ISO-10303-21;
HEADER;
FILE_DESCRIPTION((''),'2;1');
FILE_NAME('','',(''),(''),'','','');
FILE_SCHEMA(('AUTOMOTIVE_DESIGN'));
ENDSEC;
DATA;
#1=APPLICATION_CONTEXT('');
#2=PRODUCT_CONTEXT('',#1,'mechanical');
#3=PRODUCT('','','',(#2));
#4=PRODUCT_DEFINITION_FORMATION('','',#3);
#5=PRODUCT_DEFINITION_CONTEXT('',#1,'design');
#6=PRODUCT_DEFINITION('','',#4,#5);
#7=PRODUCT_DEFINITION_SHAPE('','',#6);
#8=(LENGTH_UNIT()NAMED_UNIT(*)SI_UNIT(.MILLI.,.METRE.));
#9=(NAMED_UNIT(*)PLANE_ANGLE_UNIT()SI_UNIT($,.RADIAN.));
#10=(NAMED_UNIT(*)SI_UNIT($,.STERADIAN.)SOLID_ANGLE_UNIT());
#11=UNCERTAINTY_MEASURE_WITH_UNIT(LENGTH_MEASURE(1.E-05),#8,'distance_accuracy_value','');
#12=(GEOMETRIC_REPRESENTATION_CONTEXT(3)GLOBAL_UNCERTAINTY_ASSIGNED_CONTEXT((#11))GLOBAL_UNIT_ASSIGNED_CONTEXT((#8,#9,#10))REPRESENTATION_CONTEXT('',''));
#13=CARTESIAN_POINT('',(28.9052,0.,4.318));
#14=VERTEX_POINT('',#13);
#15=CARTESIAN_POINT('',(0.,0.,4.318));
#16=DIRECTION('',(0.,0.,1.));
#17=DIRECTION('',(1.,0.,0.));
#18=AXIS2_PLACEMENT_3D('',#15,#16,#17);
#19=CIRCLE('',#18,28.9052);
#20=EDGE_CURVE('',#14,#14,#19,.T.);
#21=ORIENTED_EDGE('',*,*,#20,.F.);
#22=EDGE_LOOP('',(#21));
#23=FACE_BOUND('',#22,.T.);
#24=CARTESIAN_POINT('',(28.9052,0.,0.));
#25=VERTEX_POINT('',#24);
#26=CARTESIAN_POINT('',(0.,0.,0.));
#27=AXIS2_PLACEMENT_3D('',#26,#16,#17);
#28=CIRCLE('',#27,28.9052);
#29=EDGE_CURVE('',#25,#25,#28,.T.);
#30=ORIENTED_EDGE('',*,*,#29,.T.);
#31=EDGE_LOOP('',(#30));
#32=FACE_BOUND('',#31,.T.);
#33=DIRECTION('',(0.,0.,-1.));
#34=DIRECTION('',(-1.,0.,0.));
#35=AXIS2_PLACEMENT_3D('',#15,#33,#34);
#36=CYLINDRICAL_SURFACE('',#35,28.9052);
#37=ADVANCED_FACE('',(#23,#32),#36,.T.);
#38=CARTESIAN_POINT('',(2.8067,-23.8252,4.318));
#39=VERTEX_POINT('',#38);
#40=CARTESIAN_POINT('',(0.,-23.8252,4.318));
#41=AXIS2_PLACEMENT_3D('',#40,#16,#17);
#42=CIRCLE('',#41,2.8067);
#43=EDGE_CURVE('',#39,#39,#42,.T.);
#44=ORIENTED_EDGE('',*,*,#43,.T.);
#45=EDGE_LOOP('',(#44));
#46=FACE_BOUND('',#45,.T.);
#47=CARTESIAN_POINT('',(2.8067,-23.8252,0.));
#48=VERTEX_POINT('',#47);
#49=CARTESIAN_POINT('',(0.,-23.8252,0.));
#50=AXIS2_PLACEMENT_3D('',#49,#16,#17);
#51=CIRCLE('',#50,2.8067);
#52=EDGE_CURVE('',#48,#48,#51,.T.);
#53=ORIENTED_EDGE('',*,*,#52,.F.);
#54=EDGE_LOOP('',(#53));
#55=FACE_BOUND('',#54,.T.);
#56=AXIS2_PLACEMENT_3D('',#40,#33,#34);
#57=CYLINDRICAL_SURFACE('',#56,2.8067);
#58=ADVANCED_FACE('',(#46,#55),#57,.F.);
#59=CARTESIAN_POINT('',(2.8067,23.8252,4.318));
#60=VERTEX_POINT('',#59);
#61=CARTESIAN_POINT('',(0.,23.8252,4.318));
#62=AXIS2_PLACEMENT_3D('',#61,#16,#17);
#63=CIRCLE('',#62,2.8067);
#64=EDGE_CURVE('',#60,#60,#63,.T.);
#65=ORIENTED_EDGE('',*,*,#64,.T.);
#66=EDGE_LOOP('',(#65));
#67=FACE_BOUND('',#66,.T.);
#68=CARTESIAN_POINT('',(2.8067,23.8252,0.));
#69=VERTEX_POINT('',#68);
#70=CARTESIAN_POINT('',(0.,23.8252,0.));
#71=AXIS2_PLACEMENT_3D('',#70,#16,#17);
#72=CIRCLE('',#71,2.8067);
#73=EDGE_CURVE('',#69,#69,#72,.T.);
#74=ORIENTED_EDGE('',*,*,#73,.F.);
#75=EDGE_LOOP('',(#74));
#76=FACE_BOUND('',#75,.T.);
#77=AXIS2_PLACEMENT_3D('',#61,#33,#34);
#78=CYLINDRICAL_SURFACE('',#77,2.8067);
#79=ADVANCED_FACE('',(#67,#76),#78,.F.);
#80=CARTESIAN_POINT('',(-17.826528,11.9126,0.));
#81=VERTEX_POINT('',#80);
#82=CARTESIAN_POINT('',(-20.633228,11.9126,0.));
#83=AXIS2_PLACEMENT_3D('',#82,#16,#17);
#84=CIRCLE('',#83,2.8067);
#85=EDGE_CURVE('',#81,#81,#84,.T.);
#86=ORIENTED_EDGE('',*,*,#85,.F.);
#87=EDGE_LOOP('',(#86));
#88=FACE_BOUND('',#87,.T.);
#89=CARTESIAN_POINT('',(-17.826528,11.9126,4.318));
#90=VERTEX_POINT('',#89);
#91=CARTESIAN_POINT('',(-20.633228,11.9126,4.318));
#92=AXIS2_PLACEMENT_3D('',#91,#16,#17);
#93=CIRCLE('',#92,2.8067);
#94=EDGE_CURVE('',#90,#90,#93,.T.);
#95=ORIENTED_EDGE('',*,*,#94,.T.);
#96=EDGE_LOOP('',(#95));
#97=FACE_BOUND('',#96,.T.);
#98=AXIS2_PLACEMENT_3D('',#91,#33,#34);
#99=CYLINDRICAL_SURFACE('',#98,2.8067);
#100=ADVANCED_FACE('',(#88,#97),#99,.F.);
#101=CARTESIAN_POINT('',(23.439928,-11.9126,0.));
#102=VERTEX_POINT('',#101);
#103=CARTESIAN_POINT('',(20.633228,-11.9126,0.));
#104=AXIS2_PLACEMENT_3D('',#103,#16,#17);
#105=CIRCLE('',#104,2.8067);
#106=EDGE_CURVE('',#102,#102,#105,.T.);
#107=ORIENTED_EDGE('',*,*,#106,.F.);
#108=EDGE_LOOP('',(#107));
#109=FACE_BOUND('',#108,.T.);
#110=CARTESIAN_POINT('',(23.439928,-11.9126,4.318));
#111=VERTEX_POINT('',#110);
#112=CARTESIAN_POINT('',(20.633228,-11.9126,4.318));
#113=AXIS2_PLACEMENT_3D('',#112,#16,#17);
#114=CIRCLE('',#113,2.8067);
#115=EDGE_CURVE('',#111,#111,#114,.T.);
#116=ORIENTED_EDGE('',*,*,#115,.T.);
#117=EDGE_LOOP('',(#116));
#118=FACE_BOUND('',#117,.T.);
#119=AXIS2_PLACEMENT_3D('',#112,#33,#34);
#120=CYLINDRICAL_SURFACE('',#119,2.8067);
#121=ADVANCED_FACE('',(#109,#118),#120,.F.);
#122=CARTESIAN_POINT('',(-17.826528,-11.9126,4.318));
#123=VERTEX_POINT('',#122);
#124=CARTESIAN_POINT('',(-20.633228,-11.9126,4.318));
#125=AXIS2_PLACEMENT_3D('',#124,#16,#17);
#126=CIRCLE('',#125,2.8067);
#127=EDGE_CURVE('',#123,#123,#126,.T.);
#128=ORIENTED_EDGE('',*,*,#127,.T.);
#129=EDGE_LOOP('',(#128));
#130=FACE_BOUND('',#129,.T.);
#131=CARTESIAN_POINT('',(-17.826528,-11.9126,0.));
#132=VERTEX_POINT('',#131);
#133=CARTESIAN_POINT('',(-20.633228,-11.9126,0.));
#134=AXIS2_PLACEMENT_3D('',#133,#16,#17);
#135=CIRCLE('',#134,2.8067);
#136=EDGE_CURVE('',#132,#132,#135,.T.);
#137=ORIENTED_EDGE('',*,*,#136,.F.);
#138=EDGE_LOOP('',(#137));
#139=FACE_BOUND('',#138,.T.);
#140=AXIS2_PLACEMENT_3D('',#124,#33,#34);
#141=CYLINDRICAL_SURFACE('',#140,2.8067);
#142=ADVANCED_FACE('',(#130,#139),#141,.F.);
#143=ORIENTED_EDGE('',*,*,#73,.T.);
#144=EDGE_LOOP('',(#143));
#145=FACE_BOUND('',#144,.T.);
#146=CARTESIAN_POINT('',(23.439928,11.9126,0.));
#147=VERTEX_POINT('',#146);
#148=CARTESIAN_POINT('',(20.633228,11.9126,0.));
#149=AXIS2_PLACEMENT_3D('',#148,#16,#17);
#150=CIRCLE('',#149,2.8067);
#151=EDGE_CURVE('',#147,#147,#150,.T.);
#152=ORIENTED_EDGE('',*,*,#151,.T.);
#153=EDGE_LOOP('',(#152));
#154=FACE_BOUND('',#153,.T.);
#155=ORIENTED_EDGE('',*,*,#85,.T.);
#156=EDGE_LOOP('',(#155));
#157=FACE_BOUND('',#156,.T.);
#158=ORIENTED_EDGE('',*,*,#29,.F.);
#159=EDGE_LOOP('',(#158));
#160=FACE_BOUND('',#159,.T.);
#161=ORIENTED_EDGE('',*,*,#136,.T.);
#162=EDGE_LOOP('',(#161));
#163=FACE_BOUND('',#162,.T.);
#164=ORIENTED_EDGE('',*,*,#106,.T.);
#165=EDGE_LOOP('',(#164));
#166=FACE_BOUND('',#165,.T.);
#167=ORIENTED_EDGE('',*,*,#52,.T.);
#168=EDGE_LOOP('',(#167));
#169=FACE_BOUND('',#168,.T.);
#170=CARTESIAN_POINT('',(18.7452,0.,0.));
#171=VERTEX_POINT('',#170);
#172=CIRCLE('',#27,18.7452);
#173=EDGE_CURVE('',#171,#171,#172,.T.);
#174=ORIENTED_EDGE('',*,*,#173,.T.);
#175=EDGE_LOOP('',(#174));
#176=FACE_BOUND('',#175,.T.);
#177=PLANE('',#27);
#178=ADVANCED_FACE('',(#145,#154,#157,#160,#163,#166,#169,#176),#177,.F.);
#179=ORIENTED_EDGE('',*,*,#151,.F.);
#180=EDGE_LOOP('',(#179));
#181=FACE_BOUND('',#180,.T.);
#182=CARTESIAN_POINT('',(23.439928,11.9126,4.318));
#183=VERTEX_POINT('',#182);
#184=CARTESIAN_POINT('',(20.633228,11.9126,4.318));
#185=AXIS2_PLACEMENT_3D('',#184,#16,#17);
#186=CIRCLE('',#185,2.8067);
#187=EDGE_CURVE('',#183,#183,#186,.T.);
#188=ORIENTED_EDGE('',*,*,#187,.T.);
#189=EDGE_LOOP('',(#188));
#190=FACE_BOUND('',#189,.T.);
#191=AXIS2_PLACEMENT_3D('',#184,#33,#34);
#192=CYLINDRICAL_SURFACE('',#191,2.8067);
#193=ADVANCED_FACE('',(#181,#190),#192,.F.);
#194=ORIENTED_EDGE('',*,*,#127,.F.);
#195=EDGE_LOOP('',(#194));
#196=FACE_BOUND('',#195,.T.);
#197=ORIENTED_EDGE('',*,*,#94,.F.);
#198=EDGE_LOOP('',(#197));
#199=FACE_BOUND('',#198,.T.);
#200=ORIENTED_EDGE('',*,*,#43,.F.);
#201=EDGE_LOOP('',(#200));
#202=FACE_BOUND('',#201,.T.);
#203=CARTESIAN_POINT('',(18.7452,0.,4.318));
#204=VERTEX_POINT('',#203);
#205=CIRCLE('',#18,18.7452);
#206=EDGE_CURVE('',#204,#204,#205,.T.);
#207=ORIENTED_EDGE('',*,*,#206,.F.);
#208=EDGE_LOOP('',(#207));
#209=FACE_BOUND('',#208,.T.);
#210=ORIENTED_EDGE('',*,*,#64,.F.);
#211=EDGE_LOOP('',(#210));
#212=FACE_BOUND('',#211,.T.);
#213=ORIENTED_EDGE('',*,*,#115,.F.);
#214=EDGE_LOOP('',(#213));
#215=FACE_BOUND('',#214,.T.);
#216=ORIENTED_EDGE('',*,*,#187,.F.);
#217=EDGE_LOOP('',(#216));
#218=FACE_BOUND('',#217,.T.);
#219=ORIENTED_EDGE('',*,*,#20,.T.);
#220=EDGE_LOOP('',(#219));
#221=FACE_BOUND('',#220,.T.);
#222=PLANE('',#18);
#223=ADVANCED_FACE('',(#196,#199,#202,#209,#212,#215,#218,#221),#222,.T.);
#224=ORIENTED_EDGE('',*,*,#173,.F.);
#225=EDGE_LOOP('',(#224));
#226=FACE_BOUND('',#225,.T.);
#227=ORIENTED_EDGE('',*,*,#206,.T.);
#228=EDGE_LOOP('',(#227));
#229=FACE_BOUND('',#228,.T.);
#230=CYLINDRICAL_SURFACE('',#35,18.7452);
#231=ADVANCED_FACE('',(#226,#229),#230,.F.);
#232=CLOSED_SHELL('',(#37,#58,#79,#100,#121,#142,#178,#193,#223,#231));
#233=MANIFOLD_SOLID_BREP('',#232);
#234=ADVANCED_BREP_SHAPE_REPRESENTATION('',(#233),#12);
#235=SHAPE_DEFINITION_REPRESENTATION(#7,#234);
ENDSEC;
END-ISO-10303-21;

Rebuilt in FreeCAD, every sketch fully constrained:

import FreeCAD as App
import Part
import Sketcher
Q = App.Units.Quantity

doc = App.newDocument("Part")
params = doc.addObject("Spreadsheet::Sheet", "Params")
for row, (alias, value) in enumerate([
    ("sketch1_diameter", "2.276 in"),
    ("sketch1_diameter2", "0.221 in"),
    ("sketch1_diameter3", "1.476 in"),
    ("pad1_length", "0.17 in"),
], start=1):
    params.set(f"A{row}", alias)
    params.set(f"B{row}", "=" + value)
    params.setAlias(f"B{row}", alias)

body = doc.addObject("PartDesign::Body", "Body")

sketch1 = doc.addObject("Sketcher::SketchObject", "Sketch")
body.addObject(sketch1)
sketch1.AttachmentSupport = (doc.XY_Plane, [""])
sketch1.MapMode = "FlatFace"
sketch1.addGeometry([
    Part.Circle(App.Vector(0, 0, 0), App.Vector(0, 0, 1), 28.9),
    Part.Circle(App.Vector(-20.6, -11.9, 0), App.Vector(0, 0, 1), 2.8),
    Part.Circle(App.Vector(0, -23.8, 0), App.Vector(0, 0, 1), 2.8),
    Part.Circle(App.Vector(20.6, -11.9, 0), App.Vector(0, 0, 1), 2.8),
    Part.Circle(App.Vector(-20.6, 11.9, 0), App.Vector(0, 0, 1), 2.8),
    Part.Circle(App.Vector(0, 0, 0), App.Vector(0, 0, 1), 18.7),
    Part.Circle(App.Vector(20.6, 11.9, 0), App.Vector(0, 0, 1), 2.8),
    Part.Circle(App.Vector(0, 23.8, 0), App.Vector(0, 0, 1), 2.8),
], False)
sketch1.addConstraint([
    Sketcher.Constraint("Coincident", 0, 3, -1, 1),
    Sketcher.Constraint("Coincident", 5, 3, -1, 1),
    Sketcher.Constraint("Equal", 1, 2),
    Sketcher.Constraint("Equal", 2, 3),
    Sketcher.Constraint("Equal", 3, 4),
    Sketcher.Constraint("Equal", 4, 6),
    Sketcher.Constraint("Equal", 6, 7),
    Sketcher.Constraint("Symmetric", 3, 3, 4, 3, -1, 1),
    Sketcher.Constraint("Symmetric", 1, 3, 6, 3, -1, 1),
    Sketcher.Constraint("Symmetric", 2, 3, 7, 3, -1, 1),
    Sketcher.Constraint("Symmetric", 1, 3, 3, 3, -2),
    Sketcher.Constraint("PointOnObject", 2, 3, -2),
    Sketcher.Constraint("Diameter", 0, Q("2.276 in")),
    Sketcher.Constraint("Diameter", 1, Q("0.221 in")),
    Sketcher.Constraint("Diameter", 5, Q("1.476 in")),
    Sketcher.Constraint("DistanceY", 1, 3, -1, 1, Q("0.469 in")),
    Sketcher.Constraint("DistanceY", 2, 3, -1, 1, Q("0.938 in")),
    Sketcher.Constraint("DistanceX", 1, 3, -1, 1, 20.633228),
])
sketch1.setExpression("Constraints[12]", "Params.sketch1_diameter")
sketch1.setExpression("Constraints[13]", "Params.sketch1_diameter2")
sketch1.setExpression("Constraints[14]", "Params.sketch1_diameter3")
pad1 = doc.addObject("PartDesign::Pad", "Pad")
body.addObject(pad1)
pad1.Profile = sketch1
pad1.setExpression("Length", "Params.pad1_length")

doc.recompute()
